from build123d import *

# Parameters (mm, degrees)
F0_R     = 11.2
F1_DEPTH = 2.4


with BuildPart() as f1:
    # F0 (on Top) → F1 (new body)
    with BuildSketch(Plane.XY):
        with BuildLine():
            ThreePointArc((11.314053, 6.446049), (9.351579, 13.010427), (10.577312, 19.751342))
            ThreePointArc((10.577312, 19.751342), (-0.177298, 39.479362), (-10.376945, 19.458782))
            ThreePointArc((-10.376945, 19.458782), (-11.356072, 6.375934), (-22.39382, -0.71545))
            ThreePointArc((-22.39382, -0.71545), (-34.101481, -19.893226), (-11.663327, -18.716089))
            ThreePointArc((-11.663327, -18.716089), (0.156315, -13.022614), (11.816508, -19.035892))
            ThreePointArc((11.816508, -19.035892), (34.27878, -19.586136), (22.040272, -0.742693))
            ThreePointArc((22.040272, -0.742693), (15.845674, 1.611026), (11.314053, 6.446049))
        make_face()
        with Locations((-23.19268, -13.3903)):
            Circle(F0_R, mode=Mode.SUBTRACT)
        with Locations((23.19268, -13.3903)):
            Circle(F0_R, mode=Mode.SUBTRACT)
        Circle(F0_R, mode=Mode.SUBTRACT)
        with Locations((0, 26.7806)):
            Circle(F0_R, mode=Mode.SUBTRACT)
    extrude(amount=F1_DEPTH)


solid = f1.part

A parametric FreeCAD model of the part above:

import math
import FreeCAD as App
import Part
import Sketcher
from FreeCAD import Vector

doc = App.newDocument("Part")
body = doc.addObject("PartDesign::Body", "Body")

sketch1 = doc.addObject("Sketcher::SketchObject", "Sketch")
body.addObject(sketch1)
sketch1.AttachmentSupport = (doc.XY_Plane, [""])
sketch1.MapMode = "FlatFace"
sketch1.addGeometry(Part.ArcOfCircle(Part.Circle(Vector(24, 14, 0), Vector(0, 0, 1), 15), math.radians(156), math.radians(210)), False)
sketch1.addGeometry(Part.ArcOfCircle(Part.Circle(Vector(0, 27, 0), Vector(0, 0, 1), 13), math.radians(-34), math.radians(215)), False)
sketch1.addGeometry(Part.ArcOfCircle(Part.Circle(Vector(-24, 14, 0), Vector(0, 0, 1), 15), math.radians(-84), math.radians(22)), False)
sketch1.addGeometry(Part.ArcOfCircle(Part.Circle(Vector(-23, -13, 0), Vector(0, 0, 1), 13), math.radians(86), math.radians(335)), False)
sketch1.addGeometry(Part.ArcOfCircle(Part.Circle(Vector(0, -28, 0), Vector(0, 0, 1), 15), math.radians(36), math.radians(142)), False)
sketch1.addGeometry(Part.ArcOfCircle(Part.Circle(Vector(23, -13, 0), Vector(0, 0, 1), 13), math.radians(-154), math.radians(95)), False)
sketch1.addGeometry(Part.ArcOfCircle(Part.Circle(Vector(24, 14, 0), Vector(0, 0, 1), 15), math.radians(-150), math.radians(-98)), False)
sketch1.addGeometry(Part.Circle(Vector(-23, -13, 0), Vector(0, 0, 1), 11), False)
sketch1.addGeometry(Part.Circle(Vector(23, -13, 0), Vector(0, 0, 1), 11), False)
sketch1.addGeometry(Part.Circle(Vector(0, 0, 0), Vector(0, 0, 1), 11), False)
sketch1.addGeometry(Part.Circle(Vector(0, 27, 0), Vector(0, 0, 1), 11), False)
sketch1.addConstraint(Sketcher.Constraint("Coincident", 0, 1, 1, 1))
sketch1.addConstraint(Sketcher.Constraint("Coincident", 1, 2, 2, 2))
sketch1.addConstraint(Sketcher.Constraint("Coincident", 2, 1, 3, 1))
sketch1.addConstraint(Sketcher.Constraint("Coincident", 3, 2, 4, 2))
sketch1.addConstraint(Sketcher.Constraint("Coincident", 4, 1, 5, 1))
sketch1.addConstraint(Sketcher.Constraint("Coincident", 5, 2, 6, 2))
sketch1.addConstraint(Sketcher.Constraint("Tangent", 6, 1, 0, 2))
sketch1.addConstraint(Sketcher.Constraint("Coincident", 9, 3, -1, 1))
sketch1.addConstraint(Sketcher.Constraint("Coincident", 7, 3, 3, 3))
sketch1.addConstraint(Sketcher.Constraint("Coincident", 8, 3, 5, 3))
sketch1.addConstraint(Sketcher.Constraint("Coincident", 10, 3, 1, 3))
sketch1.addConstraint(Sketcher.Constraint("Equal", 0, 2))
sketch1.addConstraint(Sketcher.Constraint("Equal", 1, 3))
sketch1.addConstraint(Sketcher.Constraint("Equal", 2, 4))
sketch1.addConstraint(Sketcher.Constraint("Equal", 3, 5))
sketch1.addConstraint(Sketcher.Constraint("Equal", 4, 6))
sketch1.addConstraint(Sketcher.Constraint("Equal", 7, 8))
sketch1.addConstraint(Sketcher.Constraint("Equal", 8, 9))
sketch1.addConstraint(Sketcher.Constraint("Equal", 9, 10))
sketch1.addConstraint(Sketcher.Constraint("Symmetric", 3, 3, 5, 3, -2))
sketch1.addConstraint(Sketcher.Constraint("PointOnObject", 1, 3, -2))
sketch1.addConstraint(Sketcher.Constraint("Diameter", 7, 22.4))
sketch1.addConstraint(Sketcher.Constraint("Radius", 1, 12.7))
sketch1.addConstraint(Sketcher.Constraint("Radius", 0, 14.701229))
sketch1.addConstraint(Sketcher.Constraint("DistanceX", 3, 3, 0, 3, 47.223002))
sketch1.addConstraint(Sketcher.Constraint("DistanceY", -1, 1, 1, 3, 26.7806))
sketch1.addConstraint(Sketcher.Constraint("DistanceY", 3, 3, -1, 1, 13.3903))
sketch1.addConstraint(Sketcher.Constraint("DistanceX", 4, 3, -1, 1, 0.043902))
sketch1.addConstraint(Sketcher.Constraint("DistanceX", 2, 3, 5, 3, 47.179099))
sketch1.addConstraint(Sketcher.Constraint("DistanceX", 2, 3, 2, 1, 1.592599))
sketch1.addConstraint(Sketcher.Constraint("DistanceY", 4, 1, 5, 2, 18.293199))
sketch1.addConstraint(Sketcher.Constraint("DistanceY", -1, 1, 0, 3, 13.823218))
sketch1.addConstraint(Sketcher.Constraint("DistanceX", 2, 3, -1, 1, 23.986419))
sketch1.addConstraint(Sketcher.Constraint("DistanceY", -1, 1, 6, 1, 6.446049))
pad1 = doc.addObject("PartDesign::Pad", "Pad")
body.addObject(pad1)
pad1.Profile = sketch1
pad1.Length = 2.4

doc.recompute()
